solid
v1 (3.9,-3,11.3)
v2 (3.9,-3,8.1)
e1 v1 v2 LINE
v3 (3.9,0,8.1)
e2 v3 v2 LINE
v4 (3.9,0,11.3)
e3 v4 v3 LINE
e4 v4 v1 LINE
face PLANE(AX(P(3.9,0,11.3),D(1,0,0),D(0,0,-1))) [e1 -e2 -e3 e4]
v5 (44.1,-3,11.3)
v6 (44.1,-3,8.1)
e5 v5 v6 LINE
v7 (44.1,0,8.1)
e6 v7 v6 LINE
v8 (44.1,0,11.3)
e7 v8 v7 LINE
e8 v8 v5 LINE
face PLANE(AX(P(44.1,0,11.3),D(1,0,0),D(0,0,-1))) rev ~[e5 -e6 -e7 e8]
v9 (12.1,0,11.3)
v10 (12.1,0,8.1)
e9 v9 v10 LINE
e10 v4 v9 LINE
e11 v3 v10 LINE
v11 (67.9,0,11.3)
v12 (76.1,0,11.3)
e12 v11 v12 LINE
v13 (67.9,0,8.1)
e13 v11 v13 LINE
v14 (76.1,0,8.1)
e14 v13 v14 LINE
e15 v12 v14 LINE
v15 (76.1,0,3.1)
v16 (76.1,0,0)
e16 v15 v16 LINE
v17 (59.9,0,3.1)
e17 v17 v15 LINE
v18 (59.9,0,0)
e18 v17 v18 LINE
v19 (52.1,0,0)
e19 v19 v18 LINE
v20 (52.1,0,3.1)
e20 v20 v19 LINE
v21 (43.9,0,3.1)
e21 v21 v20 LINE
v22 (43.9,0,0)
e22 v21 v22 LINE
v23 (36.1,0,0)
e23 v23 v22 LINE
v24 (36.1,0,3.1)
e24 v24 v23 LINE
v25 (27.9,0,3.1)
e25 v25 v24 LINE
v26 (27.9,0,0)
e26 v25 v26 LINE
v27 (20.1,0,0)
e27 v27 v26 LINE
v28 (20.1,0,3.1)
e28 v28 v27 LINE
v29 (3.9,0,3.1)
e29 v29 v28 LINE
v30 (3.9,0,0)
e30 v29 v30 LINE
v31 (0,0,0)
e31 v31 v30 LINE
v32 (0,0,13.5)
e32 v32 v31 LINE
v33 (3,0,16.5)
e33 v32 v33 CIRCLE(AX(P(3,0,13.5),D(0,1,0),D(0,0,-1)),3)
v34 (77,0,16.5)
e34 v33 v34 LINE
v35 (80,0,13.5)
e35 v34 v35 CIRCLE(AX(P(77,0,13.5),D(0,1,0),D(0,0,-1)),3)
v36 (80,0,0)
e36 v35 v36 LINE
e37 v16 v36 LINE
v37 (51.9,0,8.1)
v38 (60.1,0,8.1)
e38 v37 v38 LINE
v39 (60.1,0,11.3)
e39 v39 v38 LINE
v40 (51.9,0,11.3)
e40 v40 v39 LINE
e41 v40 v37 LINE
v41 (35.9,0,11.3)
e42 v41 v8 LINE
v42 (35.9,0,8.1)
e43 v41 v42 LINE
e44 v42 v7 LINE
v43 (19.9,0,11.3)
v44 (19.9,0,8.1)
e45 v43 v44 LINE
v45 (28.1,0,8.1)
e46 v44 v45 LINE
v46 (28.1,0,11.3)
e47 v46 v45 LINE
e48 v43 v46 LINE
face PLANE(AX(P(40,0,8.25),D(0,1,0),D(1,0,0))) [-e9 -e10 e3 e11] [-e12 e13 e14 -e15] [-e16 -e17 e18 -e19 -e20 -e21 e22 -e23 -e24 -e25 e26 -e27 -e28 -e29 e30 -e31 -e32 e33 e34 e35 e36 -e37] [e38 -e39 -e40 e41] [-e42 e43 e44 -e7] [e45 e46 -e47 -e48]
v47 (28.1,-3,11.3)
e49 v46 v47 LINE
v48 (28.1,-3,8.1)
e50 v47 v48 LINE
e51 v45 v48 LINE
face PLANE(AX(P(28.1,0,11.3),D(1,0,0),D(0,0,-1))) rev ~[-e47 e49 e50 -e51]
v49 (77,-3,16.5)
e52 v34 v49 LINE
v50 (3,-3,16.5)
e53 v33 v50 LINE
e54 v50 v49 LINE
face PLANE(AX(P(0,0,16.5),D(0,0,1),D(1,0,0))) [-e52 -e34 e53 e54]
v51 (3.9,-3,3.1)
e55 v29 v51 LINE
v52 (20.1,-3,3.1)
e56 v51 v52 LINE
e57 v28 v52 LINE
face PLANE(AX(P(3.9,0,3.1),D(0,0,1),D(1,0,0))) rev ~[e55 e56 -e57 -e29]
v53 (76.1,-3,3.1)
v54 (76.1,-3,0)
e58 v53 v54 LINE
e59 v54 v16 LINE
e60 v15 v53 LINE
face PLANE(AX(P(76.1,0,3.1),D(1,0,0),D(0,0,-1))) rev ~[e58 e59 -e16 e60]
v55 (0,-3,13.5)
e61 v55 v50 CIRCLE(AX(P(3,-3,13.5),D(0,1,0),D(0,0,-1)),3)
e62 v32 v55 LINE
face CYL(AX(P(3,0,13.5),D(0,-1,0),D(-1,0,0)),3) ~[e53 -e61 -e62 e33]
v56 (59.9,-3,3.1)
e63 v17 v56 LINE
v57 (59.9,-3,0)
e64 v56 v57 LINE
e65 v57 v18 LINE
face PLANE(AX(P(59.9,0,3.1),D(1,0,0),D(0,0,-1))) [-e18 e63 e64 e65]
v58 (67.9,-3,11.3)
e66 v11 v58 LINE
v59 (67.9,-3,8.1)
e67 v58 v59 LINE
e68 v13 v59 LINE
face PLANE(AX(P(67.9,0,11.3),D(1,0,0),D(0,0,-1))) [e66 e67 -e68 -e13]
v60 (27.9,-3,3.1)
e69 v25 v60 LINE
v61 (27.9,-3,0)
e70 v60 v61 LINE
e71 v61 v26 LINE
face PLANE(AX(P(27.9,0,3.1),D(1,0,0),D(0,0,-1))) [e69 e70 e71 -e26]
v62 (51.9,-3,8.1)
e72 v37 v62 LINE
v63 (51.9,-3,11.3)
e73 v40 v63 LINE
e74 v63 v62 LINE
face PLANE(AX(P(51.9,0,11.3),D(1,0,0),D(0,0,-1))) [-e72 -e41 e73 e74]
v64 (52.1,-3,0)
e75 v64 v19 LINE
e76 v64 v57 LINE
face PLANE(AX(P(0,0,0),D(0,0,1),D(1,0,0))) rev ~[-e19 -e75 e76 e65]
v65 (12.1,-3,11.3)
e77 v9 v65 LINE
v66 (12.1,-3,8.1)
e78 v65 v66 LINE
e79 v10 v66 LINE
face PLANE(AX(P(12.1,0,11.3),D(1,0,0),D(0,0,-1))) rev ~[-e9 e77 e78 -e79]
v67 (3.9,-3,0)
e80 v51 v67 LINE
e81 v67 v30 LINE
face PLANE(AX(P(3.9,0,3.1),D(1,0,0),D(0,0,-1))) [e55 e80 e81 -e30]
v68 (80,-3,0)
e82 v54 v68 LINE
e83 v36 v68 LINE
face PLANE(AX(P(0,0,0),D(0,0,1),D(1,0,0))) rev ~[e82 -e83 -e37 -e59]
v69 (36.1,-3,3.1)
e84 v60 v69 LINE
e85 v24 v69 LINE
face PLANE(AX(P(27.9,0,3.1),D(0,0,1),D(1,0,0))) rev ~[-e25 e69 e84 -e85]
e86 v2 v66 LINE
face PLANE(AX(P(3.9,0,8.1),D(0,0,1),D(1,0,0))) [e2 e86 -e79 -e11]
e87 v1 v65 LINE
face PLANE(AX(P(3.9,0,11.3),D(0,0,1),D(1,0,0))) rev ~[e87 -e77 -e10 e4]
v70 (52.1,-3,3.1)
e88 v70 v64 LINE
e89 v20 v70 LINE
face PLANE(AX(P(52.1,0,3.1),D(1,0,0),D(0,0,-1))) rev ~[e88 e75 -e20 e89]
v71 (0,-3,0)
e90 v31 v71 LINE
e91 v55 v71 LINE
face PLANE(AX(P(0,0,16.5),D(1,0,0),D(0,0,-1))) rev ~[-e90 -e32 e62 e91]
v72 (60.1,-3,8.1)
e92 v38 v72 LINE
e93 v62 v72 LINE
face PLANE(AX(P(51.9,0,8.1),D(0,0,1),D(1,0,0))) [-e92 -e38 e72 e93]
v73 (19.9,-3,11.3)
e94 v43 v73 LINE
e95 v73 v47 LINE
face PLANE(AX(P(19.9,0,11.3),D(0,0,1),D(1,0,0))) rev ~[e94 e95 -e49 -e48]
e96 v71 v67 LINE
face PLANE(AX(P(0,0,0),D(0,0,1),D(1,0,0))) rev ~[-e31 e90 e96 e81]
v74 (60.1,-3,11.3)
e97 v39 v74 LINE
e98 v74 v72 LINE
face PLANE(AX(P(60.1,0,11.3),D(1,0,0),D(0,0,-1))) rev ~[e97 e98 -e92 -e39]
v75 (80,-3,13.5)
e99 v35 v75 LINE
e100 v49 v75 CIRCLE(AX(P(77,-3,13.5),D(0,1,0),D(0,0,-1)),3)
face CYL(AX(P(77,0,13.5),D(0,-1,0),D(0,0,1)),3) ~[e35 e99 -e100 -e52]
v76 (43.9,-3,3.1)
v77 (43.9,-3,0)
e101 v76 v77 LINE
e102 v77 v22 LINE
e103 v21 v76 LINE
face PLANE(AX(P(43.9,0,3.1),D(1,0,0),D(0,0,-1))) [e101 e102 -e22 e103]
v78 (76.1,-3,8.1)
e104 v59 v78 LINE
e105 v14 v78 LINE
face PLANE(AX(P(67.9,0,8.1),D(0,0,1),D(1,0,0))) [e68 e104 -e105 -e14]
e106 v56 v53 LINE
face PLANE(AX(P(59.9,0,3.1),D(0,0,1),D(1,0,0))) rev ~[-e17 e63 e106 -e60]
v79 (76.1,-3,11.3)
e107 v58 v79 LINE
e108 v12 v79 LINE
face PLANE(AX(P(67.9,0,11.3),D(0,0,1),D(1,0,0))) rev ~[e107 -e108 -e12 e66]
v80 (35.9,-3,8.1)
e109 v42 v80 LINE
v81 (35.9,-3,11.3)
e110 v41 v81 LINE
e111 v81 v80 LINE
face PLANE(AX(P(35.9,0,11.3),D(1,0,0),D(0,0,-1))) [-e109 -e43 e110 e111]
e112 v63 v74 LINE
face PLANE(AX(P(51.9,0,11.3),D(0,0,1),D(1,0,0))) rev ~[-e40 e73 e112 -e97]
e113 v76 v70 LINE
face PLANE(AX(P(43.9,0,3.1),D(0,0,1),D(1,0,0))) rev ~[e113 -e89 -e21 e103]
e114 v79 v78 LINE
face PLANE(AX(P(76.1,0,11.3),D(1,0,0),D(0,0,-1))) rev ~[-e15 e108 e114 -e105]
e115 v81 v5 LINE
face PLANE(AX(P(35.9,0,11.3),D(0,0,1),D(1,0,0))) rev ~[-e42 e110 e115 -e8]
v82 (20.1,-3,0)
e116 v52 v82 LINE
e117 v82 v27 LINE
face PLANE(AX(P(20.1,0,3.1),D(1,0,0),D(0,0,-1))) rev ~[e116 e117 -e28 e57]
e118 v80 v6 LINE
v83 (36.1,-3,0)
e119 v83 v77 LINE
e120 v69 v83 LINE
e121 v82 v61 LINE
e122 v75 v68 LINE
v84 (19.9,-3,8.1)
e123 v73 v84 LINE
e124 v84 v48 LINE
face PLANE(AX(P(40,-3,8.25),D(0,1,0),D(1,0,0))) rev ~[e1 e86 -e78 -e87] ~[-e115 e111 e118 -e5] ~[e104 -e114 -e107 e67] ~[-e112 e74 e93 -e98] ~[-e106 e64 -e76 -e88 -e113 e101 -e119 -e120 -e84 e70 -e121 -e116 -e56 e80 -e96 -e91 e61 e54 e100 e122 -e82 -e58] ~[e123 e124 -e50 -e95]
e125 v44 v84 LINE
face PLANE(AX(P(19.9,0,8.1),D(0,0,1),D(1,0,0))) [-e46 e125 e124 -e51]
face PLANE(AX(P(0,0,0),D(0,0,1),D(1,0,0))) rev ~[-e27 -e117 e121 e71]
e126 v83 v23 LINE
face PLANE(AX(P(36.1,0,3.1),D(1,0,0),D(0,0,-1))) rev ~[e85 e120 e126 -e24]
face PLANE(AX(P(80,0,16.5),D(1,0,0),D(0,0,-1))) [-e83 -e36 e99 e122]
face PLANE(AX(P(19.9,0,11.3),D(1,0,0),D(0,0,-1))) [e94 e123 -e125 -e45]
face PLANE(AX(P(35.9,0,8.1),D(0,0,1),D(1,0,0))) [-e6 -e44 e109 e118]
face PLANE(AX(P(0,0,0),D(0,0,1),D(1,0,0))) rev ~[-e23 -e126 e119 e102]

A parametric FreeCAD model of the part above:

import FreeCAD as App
import Part
import Sketcher
Q = App.Units.Quantity


def edges_at(feature, points):
    """Names of the edges that pass closest to the given points."""
    edges = feature.Shape.Edges
    near = lambda p: min(range(len(edges)), key=lambda i: edges[i].distToShape(Part.Vertex(*p))[0])
    return sorted({f"Edge{near(p) + 1}" for p in points})


def add_polygon(sketch, points):
    """Adds a closed chain of lines whose ends are joined by coincident constraints."""
    first, n = sketch.GeometryCount, len(points)
    for a, b in zip(points, points[1:] + points[:1]):
        sketch.addGeometry(Part.LineSegment(App.Vector(*a, 0), App.Vector(*b, 0)), False)
    for i in range(n):
        sketch.addConstraint(Sketcher.Constraint("Coincident", first + i, 2, first + (i + 1) % n, 1))

doc = App.newDocument("Part")
params = doc.addObject("Spreadsheet::Sheet", "Params")
for row, (alias, value) in enumerate([
    ("sketch1_width", "80 mm"),
    ("sketch1_height", "16.5 mm"),
    ("pad1_length", "3 mm"),
    ("sketch2_width", "8.2 mm"),
    ("sketch2_width2", "16.2 mm"),
    ("sketch2_height", "3.2 mm"),
    ("fillet_radius", "3 mm"),
], start=1):
    params.set(f"A{row}", alias)
    params.set(f"B{row}", "=" + value)
    params.setAlias(f"B{row}", alias)

body = doc.addObject("PartDesign::Body", "Body")

# Sketch on XZ plane
sketch1 = body.newObject("Sketcher::SketchObject", "Sketch")
sketch1.AttachmentSupport = (doc.getObject("XZ_Plane"), [""])
sketch1.MapMode = "FlatFace"
add_polygon(sketch1, [(0, 0), (0, 16.5), (80, 16.5), (80, 0)])  # lines 0-3
sketch1.addConstraint(Sketcher.Constraint("Vertical", 0))
sketch1.addConstraint(Sketcher.Constraint("Horizontal", 1))
sketch1.addConstraint(Sketcher.Constraint("Vertical", 2))
sketch1.addConstraint(Sketcher.Constraint("Horizontal", 3))
sketch1.addConstraint(Sketcher.Constraint("Coincident", 3, 2, -1, 1))
sketch1.addConstraint(Sketcher.Constraint("DistanceX", 1, 1, 1, 2, Q("80 mm")))
sketch1.addConstraint(Sketcher.Constraint("DistanceY", 0, 1, 0, 2, Q("16.5 mm")))
sketch1.setExpression("Constraints[9]", "Params.sketch1_width")
sketch1.setExpression("Constraints[10]", "Params.sketch1_height")
pad1 = body.newObject("PartDesign::Pad", "Pad")
pad1.Profile = sketch1
pad1.setExpression("Length", "Params.pad1_length")

# Sketch on XZ plane
sketch2 = body.newObject("Sketcher::SketchObject", "Sketch001")
sketch2.AttachmentSupport = (doc.getObject("XZ_Plane"), [""])
sketch2.MapMode = "FlatFace"
add_polygon(sketch2, [(3.9, 8.1), (3.9, 11.3), (12.1, 11.3), (12.1, 8.1)])  # lines 0-3
add_polygon(sketch2, [(27.9, -0.1), (27.9, 3.1), (36.1, 3.1), (36.1, -0.1)])  # lines 4-7
add_polygon(sketch2, [(35.9, 8.1), (35.9, 11.3), (44.1, 11.3), (44.1, 8.1)])  # lines 8-11
add_polygon(sketch2, [(19.9, 8.1), (19.9, 11.3), (28.1, 11.3), (28.1, 8.1)])  # lines 12-15
add_polygon(sketch2, [(3.9, -0.1), (3.9, 3.1), (20.1, 3.1), (20.1, -0.1)])  # lines 16-19
add_polygon(sketch2, [(43.9, -0.1), (43.9, 3.1), (52.1, 3.1), (52.1, -0.1)])  # lines 20-23
add_polygon(sketch2, [(51.9, 8.1), (51.9, 11.3), (60.1, 11.3), (60.1, 8.1)])  # lines 24-27
add_polygon(sketch2, [(67.9, 8.1), (67.9, 11.3), (76.1, 11.3), (76.1, 8.1)])  # lines 28-31
add_polygon(sketch2, [(59.9, -0.1), (59.9, 3.1), (76.1, 3.1), (76.1, -0.1)])  # lines 32-35
sketch2.addConstraint(Sketcher.Constraint("Vertical", 0))
sketch2.addConstraint(Sketcher.Constraint("Horizontal", 1))
sketch2.addConstraint(Sketcher.Constraint("Vertical", 2))
sketch2.addConstraint(Sketcher.Constraint("Horizontal", 3))
sketch2.addConstraint(Sketcher.Constraint("Vertical", 4))
sketch2.addConstraint(Sketcher.Constraint("Horizontal", 5))
sketch2.addConstraint(Sketcher.Constraint("Vertical", 6))
sketch2.addConstraint(Sketcher.Constraint("Horizontal", 7))
sketch2.addConstraint(Sketcher.Constraint("Vertical", 8))
sketch2.addConstraint(Sketcher.Constraint("Horizontal", 9))
sketch2.addConstraint(Sketcher.Constraint("Vertical", 10))
sketch2.addConstraint(Sketcher.Constraint("Horizontal", 11))
sketch2.addConstraint(Sketcher.Constraint("Vertical", 12))
sketch2.addConstraint(Sketcher.Constraint("Horizontal", 13))
sketch2.addConstraint(Sketcher.Constraint("Vertical", 14))
sketch2.addConstraint(Sketcher.Constraint("Horizontal", 15))
sketch2.addConstraint(Sketcher.Constraint("Vertical", 16))
sketch2.addConstraint(Sketcher.Constraint("Horizontal", 17))
sketch2.addConstraint(Sketcher.Constraint("Vertical", 18))
sketch2.addConstraint(Sketcher.Constraint("Horizontal", 19))
sketch2.addConstraint(Sketcher.Constraint("Vertical", 20))
sketch2.addConstraint(Sketcher.Constraint("Horizontal", 21))
sketch2.addConstraint(Sketcher.Constraint("Vertical", 22))
sketch2.addConstraint(Sketcher.Constraint("Horizontal", 23))
sketch2.addConstraint(Sketcher.Constraint("Vertical", 24))
sketch2.addConstraint(Sketcher.Constraint("Horizontal", 25))
sketch2.addConstraint(Sketcher.Constraint("Vertical", 26))
sketch2.addConstraint(Sketcher.Constraint("Horizontal", 27))
sketch2.addConstraint(Sketcher.Constraint("Vertical", 28))
sketch2.addConstraint(Sketcher.Constraint("Horizontal", 29))
sketch2.addConstraint(Sketcher.Constraint("Vertical", 30))
sketch2.addConstraint(Sketcher.Constraint("Horizontal", 31))
sketch2.addConstraint(Sketcher.Constraint("Vertical", 32))
sketch2.addConstraint(Sketcher.Constraint("Horizontal", 33))
sketch2.addConstraint(Sketcher.Constraint("Vertical", 34))
sketch2.addConstraint(Sketcher.Constraint("Horizontal", 35))
sketch2.addConstraint(Sketcher.Constraint("Horizontal", 1, 2, 8, 2))
sketch2.addConstraint(Sketcher.Constraint("Horizontal", 3, 2, 10, 2))
sketch2.addConstraint(Sketcher.Constraint("Horizontal", 9, 2, 12, 2))
sketch2.addConstraint(Sketcher.Constraint("Horizontal", 11, 2, 14, 2))
sketch2.addConstraint(Sketcher.Constraint("Horizontal", 5, 2, 16, 2))
sketch2.addConstraint(Sketcher.Constraint("Horizontal", 7, 2, 18, 2))
sketch2.addConstraint(Sketcher.Constraint("Horizontal", 17, 2, 20, 2))
sketch2.addConstraint(Sketcher.Constraint("Horizontal", 19, 2, 22, 2))
sketch2.addConstraint(Sketcher.Constraint("Horizontal", 13, 2, 24, 2))
sketch2.addConstraint(Sketcher.Constraint("Horizontal", 15, 2, 26, 2))
sketch2.addConstraint(Sketcher.Constraint("Horizontal", 25, 2, 28, 2))
sketch2.addConstraint(Sketcher.Constraint("Horizontal", 27, 2, 30, 2))
sketch2.addConstraint(Sketcher.Constraint("Horizontal", 21, 2, 32, 2))
sketch2.addConstraint(Sketcher.Constraint("Horizontal", 23, 2, 34, 2))
sketch2.addConstraint(Sketcher.Constraint("Vertical", 3, 2, 16, 2))
sketch2.addConstraint(Sketcher.Constraint("Vertical", 30, 2, 33, 2))
sketch2.addConstraint(Sketcher.Constraint("Equal", 3, 5))
sketch2.addConstraint(Sketcher.Constraint("Equal", 7, 9))
sketch2.addConstraint(Sketcher.Constraint("Equal", 11, 13))
sketch2.addConstraint(Sketcher.Constraint("Equal", 15, 21))
sketch2.addConstraint(Sketcher.Constraint("Equal", 23, 25))
sketch2.addConstraint(Sketcher.Constraint("Equal", 27, 29))
sketch2.addConstraint(Sketcher.Constraint("Equal", 19, 33))
sketch2.addConstraint(Sketcher.Constraint("Equal", 2, 4))
sketch2.addConstraint(Sketcher.Constraint("DistanceX", 1, 1, 1, 2, Q("8.2 mm")))
sketch2.addConstraint(Sketcher.Constraint("DistanceX", 17, 1, 17, 2, Q("16.2 mm")))
sketch2.addConstraint(Sketcher.Constraint("DistanceY", 0, 1, 0, 2, Q("3.2 mm")))
sketch2.addConstraint(Sketcher.Constraint("DistanceY", 4, 2, 2, 2, Q("5 mm")))
sketch2.addConstraint(Sketcher.Constraint("DistanceX", 3, 2, 4, 2, Q("24 mm")))
sketch2.addConstraint(Sketcher.Constraint("DistanceX", 4, 2, 8, 2, Q("8 mm")))
sketch2.addConstraint(Sketcher.Constraint("DistanceX", 12, 2, 4, 2, Q("8 mm")))
sketch2.addConstraint(Sketcher.Constraint("DistanceX", 11, 2, 20, 2, Q("8 mm")))
sketch2.addConstraint(Sketcher.Constraint("DistanceX", 20, 2, 24, 2, Q("8 mm")))
sketch2.addConstraint(Sketcher.Constraint("DistanceX", 24, 2, 28, 2, Q("16 mm")))
sketch2.addConstraint(Sketcher.Constraint("DistanceX", -1, 1, 0, 2, Q("3.9 mm")))
sketch2.addConstraint(Sketcher.Constraint("DistanceY", -1, 1, 0, 2, Q("11.3 mm")))
sketch2.setExpression("Constraints[96]", "Params.sketch2_width")
sketch2.setExpression("Constraints[97]", "Params.sketch2_width2")
sketch2.setExpression("Constraints[98]", "Params.sketch2_height")
pocket1 = body.newObject("PartDesign::Pocket", "Pocket")
pocket1.Profile = sketch2
pocket1.Type = "ThroughAll"
pocket1.Reversed = True
doc.recompute()

fillet = body.newObject("PartDesign::Fillet", "Fillet")
fillet.Base = (pocket1, edges_at(pocket1, [(80, -1.5, 16.5), (0, -1.5, 16.5)]))
fillet.setExpression("Radius", "Params.fillet_radius")

doc.recompute()
